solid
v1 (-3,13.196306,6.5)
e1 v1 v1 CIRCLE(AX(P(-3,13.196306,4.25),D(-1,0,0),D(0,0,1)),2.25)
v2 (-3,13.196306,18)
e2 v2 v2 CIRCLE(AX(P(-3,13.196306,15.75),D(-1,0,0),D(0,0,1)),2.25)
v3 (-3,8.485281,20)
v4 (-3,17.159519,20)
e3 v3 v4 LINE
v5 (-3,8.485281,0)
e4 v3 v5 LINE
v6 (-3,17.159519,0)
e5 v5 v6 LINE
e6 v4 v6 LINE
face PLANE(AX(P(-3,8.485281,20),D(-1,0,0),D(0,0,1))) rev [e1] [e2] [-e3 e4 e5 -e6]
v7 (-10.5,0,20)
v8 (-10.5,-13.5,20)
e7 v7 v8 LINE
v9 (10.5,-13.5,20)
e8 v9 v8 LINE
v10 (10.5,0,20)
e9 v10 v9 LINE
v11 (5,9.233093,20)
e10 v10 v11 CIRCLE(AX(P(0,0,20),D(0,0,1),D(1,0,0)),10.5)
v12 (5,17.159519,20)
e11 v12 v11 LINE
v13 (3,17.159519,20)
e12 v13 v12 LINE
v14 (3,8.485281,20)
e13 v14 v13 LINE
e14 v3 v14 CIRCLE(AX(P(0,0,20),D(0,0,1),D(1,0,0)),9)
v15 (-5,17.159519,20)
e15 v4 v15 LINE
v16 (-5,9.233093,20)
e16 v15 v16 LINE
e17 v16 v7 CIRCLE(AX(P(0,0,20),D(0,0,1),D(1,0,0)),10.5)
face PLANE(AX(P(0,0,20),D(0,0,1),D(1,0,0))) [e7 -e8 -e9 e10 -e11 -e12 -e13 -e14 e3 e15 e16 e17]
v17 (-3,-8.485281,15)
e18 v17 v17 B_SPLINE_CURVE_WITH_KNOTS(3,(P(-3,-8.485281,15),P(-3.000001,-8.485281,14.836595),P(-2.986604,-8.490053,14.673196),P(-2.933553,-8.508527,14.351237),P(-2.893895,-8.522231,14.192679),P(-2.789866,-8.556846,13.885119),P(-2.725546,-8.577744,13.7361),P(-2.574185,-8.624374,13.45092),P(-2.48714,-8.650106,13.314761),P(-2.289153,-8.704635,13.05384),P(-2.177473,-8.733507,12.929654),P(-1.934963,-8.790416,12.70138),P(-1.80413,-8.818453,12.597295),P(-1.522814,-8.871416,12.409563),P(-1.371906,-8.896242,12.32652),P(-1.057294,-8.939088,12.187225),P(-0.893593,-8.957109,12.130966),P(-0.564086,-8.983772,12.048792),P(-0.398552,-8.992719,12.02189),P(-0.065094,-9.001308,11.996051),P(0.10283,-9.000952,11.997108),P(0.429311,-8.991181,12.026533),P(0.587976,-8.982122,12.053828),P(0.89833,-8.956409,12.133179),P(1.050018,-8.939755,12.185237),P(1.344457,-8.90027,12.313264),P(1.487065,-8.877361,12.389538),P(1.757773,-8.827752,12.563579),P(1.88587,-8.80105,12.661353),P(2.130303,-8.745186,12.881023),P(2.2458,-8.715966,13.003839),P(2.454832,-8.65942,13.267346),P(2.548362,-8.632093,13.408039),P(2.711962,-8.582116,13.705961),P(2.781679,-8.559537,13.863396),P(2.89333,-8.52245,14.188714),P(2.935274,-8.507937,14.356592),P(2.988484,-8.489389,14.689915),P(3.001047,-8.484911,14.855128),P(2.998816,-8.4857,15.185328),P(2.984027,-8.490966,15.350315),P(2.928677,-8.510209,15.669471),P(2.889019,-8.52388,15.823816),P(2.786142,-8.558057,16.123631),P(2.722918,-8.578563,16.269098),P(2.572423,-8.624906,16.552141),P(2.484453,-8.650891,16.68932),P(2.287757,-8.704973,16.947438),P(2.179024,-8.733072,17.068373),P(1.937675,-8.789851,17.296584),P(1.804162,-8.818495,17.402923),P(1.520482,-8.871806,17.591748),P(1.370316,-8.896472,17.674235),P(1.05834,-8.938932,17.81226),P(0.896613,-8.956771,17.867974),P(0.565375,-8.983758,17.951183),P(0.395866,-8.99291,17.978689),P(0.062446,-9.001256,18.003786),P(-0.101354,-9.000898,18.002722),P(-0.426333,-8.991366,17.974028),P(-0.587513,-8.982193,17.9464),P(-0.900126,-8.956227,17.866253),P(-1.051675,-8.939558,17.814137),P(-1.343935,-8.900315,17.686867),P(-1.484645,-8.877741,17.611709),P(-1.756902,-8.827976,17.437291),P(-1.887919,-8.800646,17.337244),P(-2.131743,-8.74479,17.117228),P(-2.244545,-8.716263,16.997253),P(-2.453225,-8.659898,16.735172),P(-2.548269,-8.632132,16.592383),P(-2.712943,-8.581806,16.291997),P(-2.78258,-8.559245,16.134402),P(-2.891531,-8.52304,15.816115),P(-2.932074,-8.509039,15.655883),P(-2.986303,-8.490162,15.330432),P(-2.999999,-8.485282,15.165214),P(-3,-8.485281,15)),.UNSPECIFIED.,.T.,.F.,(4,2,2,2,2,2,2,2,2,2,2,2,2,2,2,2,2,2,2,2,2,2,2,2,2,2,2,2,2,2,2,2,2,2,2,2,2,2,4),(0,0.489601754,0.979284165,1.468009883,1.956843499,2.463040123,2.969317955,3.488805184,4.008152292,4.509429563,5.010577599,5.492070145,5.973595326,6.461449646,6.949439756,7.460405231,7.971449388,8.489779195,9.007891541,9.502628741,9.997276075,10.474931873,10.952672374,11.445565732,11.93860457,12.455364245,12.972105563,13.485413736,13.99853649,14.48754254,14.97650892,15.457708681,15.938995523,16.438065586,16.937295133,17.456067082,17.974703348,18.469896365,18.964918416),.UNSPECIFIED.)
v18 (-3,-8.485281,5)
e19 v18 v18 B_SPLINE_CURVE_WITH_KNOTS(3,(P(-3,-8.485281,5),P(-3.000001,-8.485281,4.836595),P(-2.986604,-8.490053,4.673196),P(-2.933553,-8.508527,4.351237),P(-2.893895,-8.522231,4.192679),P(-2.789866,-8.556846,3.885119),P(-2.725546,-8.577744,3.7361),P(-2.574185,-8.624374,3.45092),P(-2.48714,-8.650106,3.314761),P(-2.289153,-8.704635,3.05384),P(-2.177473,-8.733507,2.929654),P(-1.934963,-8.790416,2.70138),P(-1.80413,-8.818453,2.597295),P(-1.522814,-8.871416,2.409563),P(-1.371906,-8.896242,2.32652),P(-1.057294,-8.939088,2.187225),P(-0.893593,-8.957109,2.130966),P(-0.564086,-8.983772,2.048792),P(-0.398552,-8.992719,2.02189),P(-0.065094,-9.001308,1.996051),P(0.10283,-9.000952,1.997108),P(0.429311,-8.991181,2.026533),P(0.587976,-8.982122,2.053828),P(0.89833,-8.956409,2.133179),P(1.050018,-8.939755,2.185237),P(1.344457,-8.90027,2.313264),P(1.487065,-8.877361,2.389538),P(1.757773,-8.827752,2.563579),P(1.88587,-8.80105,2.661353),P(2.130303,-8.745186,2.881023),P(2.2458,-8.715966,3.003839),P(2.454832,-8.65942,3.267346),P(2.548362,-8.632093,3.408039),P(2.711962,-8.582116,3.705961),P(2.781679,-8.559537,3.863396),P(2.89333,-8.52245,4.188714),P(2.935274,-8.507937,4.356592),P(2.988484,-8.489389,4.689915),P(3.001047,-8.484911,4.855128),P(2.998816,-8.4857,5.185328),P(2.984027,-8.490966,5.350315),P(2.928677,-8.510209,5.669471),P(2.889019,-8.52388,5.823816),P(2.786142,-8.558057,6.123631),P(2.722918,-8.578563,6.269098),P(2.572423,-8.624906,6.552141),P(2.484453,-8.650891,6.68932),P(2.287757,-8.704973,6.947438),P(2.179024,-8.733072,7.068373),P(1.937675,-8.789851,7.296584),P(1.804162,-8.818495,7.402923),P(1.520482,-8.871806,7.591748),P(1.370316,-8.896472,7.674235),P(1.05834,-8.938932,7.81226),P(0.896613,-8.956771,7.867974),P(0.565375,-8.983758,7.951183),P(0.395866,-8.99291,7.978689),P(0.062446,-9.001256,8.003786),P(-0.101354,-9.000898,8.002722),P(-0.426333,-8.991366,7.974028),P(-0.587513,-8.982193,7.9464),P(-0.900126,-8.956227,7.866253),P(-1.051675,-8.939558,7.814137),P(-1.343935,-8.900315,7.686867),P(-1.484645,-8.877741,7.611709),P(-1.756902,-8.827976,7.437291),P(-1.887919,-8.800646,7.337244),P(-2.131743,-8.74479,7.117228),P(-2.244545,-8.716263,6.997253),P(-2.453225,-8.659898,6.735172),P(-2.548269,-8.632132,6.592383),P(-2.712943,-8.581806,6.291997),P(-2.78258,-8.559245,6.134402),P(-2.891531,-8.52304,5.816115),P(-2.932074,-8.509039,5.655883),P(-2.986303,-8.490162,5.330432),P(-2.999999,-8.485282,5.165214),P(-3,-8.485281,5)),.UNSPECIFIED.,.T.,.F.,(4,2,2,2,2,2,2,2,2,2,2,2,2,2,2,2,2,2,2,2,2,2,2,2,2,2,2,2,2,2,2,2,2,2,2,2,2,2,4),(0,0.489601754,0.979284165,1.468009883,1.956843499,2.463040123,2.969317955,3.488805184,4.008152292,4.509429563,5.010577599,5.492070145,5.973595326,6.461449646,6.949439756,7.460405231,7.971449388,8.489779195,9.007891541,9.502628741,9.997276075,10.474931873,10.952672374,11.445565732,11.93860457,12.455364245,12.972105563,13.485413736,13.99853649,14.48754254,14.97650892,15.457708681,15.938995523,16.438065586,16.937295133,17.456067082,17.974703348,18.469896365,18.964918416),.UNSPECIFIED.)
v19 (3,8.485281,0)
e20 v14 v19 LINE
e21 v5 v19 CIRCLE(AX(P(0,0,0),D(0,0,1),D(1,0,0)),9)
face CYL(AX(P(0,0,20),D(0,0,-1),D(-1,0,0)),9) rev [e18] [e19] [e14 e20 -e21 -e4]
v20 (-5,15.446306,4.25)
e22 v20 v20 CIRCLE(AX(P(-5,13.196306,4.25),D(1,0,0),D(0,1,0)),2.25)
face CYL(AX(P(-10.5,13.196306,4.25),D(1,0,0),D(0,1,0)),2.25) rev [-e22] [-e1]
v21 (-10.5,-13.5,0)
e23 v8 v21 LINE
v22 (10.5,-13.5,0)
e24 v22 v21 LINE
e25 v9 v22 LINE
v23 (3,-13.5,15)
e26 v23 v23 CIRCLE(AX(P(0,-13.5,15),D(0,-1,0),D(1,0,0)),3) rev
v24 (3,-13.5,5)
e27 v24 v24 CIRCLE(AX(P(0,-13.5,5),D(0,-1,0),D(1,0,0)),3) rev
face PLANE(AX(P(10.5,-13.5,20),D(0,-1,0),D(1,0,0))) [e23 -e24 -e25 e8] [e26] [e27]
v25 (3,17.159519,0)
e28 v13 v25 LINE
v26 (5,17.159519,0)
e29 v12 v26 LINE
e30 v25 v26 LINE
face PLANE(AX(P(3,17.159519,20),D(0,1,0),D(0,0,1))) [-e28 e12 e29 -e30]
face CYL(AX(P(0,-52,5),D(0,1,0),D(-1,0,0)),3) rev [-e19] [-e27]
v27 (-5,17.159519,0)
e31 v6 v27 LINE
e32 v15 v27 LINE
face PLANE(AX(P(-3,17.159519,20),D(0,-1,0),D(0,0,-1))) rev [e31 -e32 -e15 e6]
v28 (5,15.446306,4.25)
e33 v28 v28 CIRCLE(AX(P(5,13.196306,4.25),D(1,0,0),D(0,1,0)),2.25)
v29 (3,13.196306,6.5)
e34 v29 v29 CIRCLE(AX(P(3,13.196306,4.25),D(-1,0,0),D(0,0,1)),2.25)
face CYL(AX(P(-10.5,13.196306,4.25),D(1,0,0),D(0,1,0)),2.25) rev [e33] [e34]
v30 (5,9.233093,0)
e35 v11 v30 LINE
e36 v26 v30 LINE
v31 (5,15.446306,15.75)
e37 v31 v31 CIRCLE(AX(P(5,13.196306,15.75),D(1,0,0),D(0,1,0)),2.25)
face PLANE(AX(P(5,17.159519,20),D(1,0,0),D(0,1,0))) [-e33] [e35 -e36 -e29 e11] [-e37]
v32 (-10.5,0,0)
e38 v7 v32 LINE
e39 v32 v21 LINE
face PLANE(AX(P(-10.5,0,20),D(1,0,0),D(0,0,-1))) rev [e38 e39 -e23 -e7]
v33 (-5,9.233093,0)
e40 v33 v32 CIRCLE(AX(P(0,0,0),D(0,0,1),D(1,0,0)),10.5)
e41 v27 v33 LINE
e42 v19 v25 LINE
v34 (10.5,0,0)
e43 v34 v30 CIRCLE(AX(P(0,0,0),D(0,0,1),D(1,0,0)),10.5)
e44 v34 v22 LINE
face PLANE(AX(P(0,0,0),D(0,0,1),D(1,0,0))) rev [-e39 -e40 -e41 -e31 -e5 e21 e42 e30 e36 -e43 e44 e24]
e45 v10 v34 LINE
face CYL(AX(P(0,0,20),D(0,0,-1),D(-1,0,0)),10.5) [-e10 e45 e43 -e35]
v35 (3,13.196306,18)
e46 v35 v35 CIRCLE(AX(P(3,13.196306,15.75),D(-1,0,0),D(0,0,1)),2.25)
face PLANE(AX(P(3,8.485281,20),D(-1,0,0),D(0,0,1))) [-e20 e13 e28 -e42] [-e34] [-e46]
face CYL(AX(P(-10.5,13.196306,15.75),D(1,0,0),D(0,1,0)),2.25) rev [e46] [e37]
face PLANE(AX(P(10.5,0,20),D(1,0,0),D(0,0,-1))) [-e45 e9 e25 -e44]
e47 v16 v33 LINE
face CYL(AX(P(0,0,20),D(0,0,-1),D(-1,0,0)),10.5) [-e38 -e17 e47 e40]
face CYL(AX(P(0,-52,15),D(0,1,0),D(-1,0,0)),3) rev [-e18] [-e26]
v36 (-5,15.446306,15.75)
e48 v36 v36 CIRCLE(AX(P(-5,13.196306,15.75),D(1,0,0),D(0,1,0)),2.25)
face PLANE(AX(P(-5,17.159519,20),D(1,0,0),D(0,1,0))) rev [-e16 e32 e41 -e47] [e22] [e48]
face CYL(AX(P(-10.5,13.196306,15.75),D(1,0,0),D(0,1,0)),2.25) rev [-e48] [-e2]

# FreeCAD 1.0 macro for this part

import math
import FreeCAD as App
import Part
import Sketcher
from FreeCAD import Vector

doc = App.newDocument("Part")
params = doc.addObject("Spreadsheet::Sheet", "Params")
for row, (alias, value) in enumerate([
    ("sketch1_radius", "9 mm"),
    ("sketch1_radius2", "10.5 mm"),
    ("sketch1_width", "2 mm"),
    ("sketch1_height", "13.5 mm"),
    ("pad1_length", "20 mm"),
    ("sketch2_diameter", "4.5 mm"),
    ("sketch3_diameter", "4.25 mm"),
    ("sketch4_diameter", "6 mm"),
    ("pocket3_length", "44.5 mm"),
], start=1):
    params.set(f"A{row}", alias)
    params.set(f"B{row}", "=" + value)
    params.setAlias(f"B{row}", alias)

body = doc.addObject("PartDesign::Body", "Body")

# Sketch on XY plane
sketch1 = body.newObject("Sketcher::SketchObject", "Sketch")
sketch1.AttachmentSupport = (doc.getObject("XY_Plane"), [""])
sketch1.MapMode = "FlatFace"
sketch1.addGeometry([
    Part.LineSegment(Vector(-3, 8.485281, 0), Vector(-3, 17.159519, 0)),  # 0
    Part.LineSegment(Vector(-3, 17.159519, 0), Vector(-5, 17.159519, 0)),  # 1
    Part.LineSegment(Vector(-5, 17.159519, 0), Vector(-5, 9.233093, 0)),  # 2
    Part.ArcOfCircle(Part.Circle(Vector(0, 0, 0), Vector(0, 0, 1), 10.5), math.radians(118.43689), math.radians(180)),  # 3
    Part.LineSegment(Vector(-10.5, 0, 0), Vector(-10.5, -13.5, 0)),  # 4
    Part.LineSegment(Vector(-10.5, -13.5, 0), Vector(10.5, -13.5, 0)),  # 5
    Part.LineSegment(Vector(10.5, -13.5, 0), Vector(10.5, 0, 0)),  # 6
    Part.ArcOfCircle(Part.Circle(Vector(0, 0, 0), Vector(0, 0, 1), 10.5), math.radians(0), math.radians(61.56311)),  # 7
    Part.LineSegment(Vector(5, 9.233093, 0), Vector(5, 17.159519, 0)),  # 8
    Part.LineSegment(Vector(5, 17.159519, 0), Vector(3, 17.159519, 0)),  # 9
    Part.LineSegment(Vector(3, 17.159519, 0), Vector(3, 8.485281, 0)),  # 10
    Part.ArcOfCircle(Part.Circle(Vector(0, 0, 0), Vector(0, 0, 1), 9), math.radians(109.471221), math.radians(430.528779)),  # 11
], False)
sketch1.addConstraint([
    Sketcher.Constraint("Coincident", 0, 2, 1, 1),
    Sketcher.Constraint("Coincident", 1, 2, 2, 1),
    Sketcher.Constraint("Coincident", 2, 2, 3, 1),
    Sketcher.Constraint("Tangent", 3, 2, 4, 1),
    Sketcher.Constraint("Coincident", 4, 2, 5, 1),
    Sketcher.Constraint("Coincident", 5, 2, 6, 1),
    Sketcher.Constraint("Tangent", 6, 2, 7, 1),
    Sketcher.Constraint("Coincident", 7, 2, 8, 1),
    Sketcher.Constraint("Coincident", 8, 2, 9, 1),
    Sketcher.Constraint("Coincident", 9, 2, 10, 1),
    Sketcher.Constraint("Coincident", 10, 2, 11, 2),
    Sketcher.Constraint("Coincident", 11, 1, 0, 1),
    Sketcher.Constraint("Vertical", 0),
    Sketcher.Constraint("Horizontal", 1),
    Sketcher.Constraint("Vertical", 2),
    Sketcher.Constraint("Vertical", 4),
    Sketcher.Constraint("Horizontal", 5),
    Sketcher.Constraint("Vertical", 6),
    Sketcher.Constraint("Vertical", 8),
    Sketcher.Constraint("Horizontal", 9),
    Sketcher.Constraint("Vertical", 10),
    Sketcher.Constraint("Coincident", 3, 3, -1, 1),
    Sketcher.Constraint("Coincident", 7, 3, -1, 1),
    Sketcher.Constraint("Coincident", 11, 3, -1, 1),
    Sketcher.Constraint("Equal", 3, 7),
    Sketcher.Constraint("Symmetric", 1, 2, 8, 2, -2),
    Sketcher.Constraint("Horizontal", 10, 2, 11, 1),
    Sketcher.Constraint("Radius", 11, 9.0),
    Sketcher.Constraint("Radius", 3, 10.5),
    Sketcher.Constraint("DistanceX", 1, 2, 1, 1, 2.0),
    Sketcher.Constraint("DistanceY", 4, 2, 4, 1, 13.5),
    Sketcher.Constraint("DistanceX", 0, 2, -1, 1, 3.0),
    Sketcher.Constraint("DistanceY", 0, 1, 0, 2, 8.674238),
])
sketch1.setExpression("Constraints[27]", "Params.sketch1_radius")
sketch1.setExpression("Constraints[28]", "Params.sketch1_radius2")
sketch1.setExpression("Constraints[29]", "Params.sketch1_width")
sketch1.setExpression("Constraints[30]", "Params.sketch1_height")
pad1 = body.newObject("PartDesign::Pad", "Pad")
pad1.Profile = sketch1
pad1.setExpression("Length", "Params.pad1_length")

# Sketch on YZ plane
sketch2 = body.newObject("Sketcher::SketchObject", "Sketch001")
sketch2.AttachmentSupport = (doc.getObject("YZ_Plane"), [""])
sketch2.MapMode = "FlatFace"
sketch2.AttachmentOffset = App.Placement(Vector(0, 0, 5), App.Rotation())
sketch2.addGeometry([
    Part.Circle(Vector(13.196306, 15.75, 0), Vector(0, 0, 1), 2.25),
    Part.Circle(Vector(13.196306, 4.25, 0), Vector(0, 0, 1), 2.25),
], False)
sketch2.addConstraint([
    Sketcher.Constraint("Equal", 0, 1),
    Sketcher.Constraint("Vertical", 0, 3, 1, 3),
    Sketcher.Constraint("Diameter", 0, 4.5),
    Sketcher.Constraint("DistanceY", 1, 3, 0, 3, 11.5),
    Sketcher.Constraint("DistanceY", -1, 1, 0, 3, 15.75),
    Sketcher.Constraint("DistanceX", -1, 1, 0, 3, 13.196306),
])
sketch2.setExpression("Constraints[2]", "Params.sketch2_diameter")
pocket1 = body.newObject("PartDesign::Pocket", "Pocket")
pocket1.Profile = sketch2
pocket1.Type = "ThroughAll"

# Sketch on XZ plane
sketch3 = body.newObject("Sketcher::SketchObject", "Sketch002")
sketch3.AttachmentSupport = (doc.getObject("XZ_Plane"), [""])
sketch3.MapMode = "FlatFace"
sketch3.AttachmentOffset = App.Placement(Vector(0, 0, 13.5), App.Rotation())
sketch3.addGeometry([
    Part.Circle(Vector(0, 5, 0), Vector(0, 0, 1), 2.125),
    Part.Circle(Vector(0, 15, 0), Vector(0, 0, 1), 2.125),
], False)
sketch3.addConstraint([
    Sketcher.Constraint("Equal", 0, 1),
    Sketcher.Constraint("PointOnObject", 0, 3, -2),
    Sketcher.Constraint("PointOnObject", 1, 3, -2),
    Sketcher.Constraint("Diameter", 0, 4.25),
    Sketcher.Constraint("DistanceY", -1, 1, 0, 3, 5.0),
    Sketcher.Constraint("DistanceY", -1, 1, 1, 3, 15.0),
])
sketch3.setExpression("Constraints[3]", "Params.sketch3_diameter")
pocket2 = body.newObject("PartDesign::Pocket", "Pocket001")
pocket2.Profile = sketch3
pocket2.Type = "ThroughAll"

# Sketch on XZ plane
sketch4 = body.newObject("Sketcher::SketchObject", "Sketch003")
sketch4.AttachmentSupport = (doc.getObject("XZ_Plane"), [""])
sketch4.MapMode = "FlatFace"
sketch4.AttachmentOffset = App.Placement(Vector(0, 0, 7.5), App.Rotation())
sketch4.addGeometry([
    Part.Circle(Vector(0, 15, 0), Vector(0, 0, 1), 3),
    Part.Circle(Vector(0, 5, 0), Vector(0, 0, 1), 3),
], False)
sketch4.addConstraint([
    Sketcher.Constraint("Equal", 0, 1),
    Sketcher.Constraint("PointOnObject", 0, 3, -2),
    Sketcher.Constraint("PointOnObject", 1, 3, -2),
    Sketcher.Constraint("Diameter", 0, 6.0),
    Sketcher.Constraint("DistanceY", -1, 1, 0, 3, 15.0),
    Sketcher.Constraint("DistanceY", -1, 1, 1, 3, 5.0),
])
sketch4.setExpression("Constraints[3]", "Params.sketch4_diameter")
pocket3 = body.newObject("PartDesign::Pocket", "Pocket002")
pocket3.Profile = sketch4
pocket3.setExpression("Length", "Params.pocket3_length")
pocket3.Reversed = True

doc.recompute()
